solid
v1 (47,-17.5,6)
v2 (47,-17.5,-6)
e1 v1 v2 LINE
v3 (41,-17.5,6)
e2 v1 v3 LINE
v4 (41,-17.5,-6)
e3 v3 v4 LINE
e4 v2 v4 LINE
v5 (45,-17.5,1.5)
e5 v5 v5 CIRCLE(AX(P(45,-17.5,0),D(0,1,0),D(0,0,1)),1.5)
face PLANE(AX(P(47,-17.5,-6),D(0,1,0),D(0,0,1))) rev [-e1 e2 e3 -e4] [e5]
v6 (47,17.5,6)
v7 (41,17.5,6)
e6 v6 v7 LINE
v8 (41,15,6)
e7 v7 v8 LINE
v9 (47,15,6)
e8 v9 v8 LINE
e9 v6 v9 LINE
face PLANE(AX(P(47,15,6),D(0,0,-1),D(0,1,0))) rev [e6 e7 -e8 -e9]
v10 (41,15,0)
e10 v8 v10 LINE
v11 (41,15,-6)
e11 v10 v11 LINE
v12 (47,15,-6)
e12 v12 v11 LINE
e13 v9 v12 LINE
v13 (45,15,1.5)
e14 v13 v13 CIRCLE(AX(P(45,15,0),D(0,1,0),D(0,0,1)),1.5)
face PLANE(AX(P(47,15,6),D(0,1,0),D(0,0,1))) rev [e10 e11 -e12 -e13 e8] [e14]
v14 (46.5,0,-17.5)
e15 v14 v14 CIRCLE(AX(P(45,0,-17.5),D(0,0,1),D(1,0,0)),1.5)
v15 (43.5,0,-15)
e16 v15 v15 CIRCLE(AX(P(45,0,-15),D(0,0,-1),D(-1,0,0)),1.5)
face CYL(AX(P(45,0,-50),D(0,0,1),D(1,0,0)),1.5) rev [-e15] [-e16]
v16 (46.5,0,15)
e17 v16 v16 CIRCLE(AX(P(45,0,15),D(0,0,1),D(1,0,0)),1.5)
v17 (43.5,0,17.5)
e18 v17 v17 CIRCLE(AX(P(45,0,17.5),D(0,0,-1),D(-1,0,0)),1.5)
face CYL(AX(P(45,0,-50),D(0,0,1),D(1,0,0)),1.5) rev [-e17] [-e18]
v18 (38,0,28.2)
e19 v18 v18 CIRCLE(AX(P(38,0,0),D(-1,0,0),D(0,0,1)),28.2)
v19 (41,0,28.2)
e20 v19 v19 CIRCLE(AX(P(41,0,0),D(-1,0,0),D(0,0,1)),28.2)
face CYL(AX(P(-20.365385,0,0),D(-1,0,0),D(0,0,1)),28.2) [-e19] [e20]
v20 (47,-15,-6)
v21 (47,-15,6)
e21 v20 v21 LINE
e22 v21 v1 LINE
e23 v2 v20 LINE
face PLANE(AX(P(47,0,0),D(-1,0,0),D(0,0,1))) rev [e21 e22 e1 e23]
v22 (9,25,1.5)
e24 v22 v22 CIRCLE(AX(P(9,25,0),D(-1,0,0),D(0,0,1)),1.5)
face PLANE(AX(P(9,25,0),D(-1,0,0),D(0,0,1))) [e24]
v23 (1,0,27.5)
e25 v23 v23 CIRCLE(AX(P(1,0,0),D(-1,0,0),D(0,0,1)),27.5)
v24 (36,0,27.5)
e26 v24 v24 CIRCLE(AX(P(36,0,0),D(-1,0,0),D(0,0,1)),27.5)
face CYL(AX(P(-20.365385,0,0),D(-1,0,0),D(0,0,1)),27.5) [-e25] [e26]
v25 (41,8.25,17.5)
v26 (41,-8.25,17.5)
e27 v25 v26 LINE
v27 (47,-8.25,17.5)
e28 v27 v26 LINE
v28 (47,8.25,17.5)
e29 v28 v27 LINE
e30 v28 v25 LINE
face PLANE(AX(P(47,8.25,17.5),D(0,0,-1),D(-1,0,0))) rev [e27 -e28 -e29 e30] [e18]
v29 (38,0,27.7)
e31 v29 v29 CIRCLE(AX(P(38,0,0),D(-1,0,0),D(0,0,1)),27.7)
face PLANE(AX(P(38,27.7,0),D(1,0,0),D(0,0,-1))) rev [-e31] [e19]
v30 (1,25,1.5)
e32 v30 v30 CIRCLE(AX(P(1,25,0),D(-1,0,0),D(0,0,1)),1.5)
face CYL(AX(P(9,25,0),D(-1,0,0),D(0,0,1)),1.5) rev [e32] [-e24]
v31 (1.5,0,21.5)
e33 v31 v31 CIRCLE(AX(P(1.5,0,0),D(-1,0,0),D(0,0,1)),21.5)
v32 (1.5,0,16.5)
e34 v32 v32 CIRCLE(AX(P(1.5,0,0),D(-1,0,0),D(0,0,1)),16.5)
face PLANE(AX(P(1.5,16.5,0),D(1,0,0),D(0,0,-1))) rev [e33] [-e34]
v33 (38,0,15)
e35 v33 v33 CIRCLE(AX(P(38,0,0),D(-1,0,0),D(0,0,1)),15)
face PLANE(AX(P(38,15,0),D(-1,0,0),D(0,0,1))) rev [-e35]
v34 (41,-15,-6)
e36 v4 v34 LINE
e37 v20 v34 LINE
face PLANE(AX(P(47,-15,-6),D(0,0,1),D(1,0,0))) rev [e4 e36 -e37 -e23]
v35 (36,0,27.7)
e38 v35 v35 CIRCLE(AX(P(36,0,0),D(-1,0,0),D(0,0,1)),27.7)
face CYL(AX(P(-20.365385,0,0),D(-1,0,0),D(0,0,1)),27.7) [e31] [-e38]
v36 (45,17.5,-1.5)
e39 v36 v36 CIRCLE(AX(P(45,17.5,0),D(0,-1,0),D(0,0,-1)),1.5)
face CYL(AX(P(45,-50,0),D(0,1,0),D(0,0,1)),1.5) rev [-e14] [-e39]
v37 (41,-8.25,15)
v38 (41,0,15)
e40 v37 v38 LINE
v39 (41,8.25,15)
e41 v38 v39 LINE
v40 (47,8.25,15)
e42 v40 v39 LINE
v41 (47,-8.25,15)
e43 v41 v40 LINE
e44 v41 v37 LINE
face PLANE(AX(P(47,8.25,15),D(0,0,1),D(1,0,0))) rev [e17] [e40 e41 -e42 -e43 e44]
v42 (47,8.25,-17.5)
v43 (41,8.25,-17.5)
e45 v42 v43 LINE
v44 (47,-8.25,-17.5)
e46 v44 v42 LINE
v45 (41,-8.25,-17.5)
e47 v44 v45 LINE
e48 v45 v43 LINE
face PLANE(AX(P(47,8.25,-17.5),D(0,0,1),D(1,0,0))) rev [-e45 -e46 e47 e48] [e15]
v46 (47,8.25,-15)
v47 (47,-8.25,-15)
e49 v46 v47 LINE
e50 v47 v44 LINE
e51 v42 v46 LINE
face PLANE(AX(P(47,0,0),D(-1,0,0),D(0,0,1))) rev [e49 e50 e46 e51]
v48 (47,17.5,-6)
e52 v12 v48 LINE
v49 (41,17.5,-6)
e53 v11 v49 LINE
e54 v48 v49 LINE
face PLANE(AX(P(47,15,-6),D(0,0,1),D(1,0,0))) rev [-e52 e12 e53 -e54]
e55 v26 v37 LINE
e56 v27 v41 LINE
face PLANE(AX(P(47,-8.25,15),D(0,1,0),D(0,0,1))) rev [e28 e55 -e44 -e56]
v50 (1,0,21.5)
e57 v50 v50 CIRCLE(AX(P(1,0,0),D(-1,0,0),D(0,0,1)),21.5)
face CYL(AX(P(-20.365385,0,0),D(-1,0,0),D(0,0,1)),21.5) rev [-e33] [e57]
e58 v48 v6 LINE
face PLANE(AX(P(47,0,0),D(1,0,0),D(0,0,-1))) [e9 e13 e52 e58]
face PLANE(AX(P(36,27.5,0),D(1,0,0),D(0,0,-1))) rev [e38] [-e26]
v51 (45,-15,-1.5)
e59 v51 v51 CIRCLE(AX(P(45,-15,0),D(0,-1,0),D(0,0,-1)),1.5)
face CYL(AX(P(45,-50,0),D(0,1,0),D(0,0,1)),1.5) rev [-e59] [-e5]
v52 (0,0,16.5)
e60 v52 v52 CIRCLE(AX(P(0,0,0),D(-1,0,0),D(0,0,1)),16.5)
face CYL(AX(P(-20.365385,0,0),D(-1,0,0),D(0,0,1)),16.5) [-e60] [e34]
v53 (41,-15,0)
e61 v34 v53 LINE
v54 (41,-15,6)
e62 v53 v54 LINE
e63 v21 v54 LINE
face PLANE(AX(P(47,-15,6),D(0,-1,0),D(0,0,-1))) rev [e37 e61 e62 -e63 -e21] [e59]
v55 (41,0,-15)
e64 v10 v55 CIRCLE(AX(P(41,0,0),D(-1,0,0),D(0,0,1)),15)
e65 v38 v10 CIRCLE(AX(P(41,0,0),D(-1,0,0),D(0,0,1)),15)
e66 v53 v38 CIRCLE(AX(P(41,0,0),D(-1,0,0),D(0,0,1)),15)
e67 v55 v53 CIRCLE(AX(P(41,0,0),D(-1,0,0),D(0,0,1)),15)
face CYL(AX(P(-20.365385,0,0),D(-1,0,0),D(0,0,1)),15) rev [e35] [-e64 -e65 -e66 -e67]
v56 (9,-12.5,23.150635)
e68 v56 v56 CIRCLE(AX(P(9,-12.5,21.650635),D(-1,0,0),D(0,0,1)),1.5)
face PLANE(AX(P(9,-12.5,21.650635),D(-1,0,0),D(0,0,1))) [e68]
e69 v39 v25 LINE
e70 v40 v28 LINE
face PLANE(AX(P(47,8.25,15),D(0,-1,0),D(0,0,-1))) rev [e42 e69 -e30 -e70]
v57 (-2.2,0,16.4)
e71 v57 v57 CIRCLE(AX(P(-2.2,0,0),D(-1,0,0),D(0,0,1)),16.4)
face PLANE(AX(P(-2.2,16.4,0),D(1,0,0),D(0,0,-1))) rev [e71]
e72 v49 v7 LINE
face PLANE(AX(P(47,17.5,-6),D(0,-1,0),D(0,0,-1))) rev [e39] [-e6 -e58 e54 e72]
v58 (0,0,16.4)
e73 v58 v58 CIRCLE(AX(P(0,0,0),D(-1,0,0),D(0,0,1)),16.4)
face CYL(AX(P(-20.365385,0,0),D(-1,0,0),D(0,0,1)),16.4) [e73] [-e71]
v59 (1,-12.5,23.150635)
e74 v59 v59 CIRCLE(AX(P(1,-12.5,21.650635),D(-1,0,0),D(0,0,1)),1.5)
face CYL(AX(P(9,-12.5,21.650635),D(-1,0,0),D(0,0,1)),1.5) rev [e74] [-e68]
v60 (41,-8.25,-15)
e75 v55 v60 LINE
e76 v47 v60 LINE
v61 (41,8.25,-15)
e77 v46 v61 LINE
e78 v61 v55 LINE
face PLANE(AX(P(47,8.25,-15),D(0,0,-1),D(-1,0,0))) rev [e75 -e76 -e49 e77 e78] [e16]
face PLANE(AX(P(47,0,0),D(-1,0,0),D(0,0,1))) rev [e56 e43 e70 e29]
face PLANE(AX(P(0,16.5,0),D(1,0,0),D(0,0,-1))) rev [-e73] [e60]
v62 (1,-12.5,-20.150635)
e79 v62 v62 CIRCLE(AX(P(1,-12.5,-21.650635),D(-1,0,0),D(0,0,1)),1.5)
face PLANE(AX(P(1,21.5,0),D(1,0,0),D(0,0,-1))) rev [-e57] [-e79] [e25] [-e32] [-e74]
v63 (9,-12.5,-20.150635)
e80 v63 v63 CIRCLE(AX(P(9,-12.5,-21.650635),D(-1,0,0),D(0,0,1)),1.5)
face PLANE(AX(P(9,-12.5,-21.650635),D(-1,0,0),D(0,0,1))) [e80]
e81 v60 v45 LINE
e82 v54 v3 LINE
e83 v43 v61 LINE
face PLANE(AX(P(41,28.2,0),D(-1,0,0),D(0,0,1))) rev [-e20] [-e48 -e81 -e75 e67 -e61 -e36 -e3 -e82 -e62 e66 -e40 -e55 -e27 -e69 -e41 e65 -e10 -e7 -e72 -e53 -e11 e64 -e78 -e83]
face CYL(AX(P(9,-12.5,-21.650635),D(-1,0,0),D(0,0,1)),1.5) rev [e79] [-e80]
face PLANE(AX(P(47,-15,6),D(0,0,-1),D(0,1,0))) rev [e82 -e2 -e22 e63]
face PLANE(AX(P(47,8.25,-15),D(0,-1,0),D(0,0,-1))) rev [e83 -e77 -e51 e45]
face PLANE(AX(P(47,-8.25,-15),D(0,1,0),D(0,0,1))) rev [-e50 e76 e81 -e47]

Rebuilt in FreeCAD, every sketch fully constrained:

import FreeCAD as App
import Part
import Sketcher
from FreeCAD import Vector


def add_polygon(sketch, points):
    """Adds a closed chain of lines whose ends are joined by coincident constraints."""
    first, n = sketch.GeometryCount, len(points)
    for a, b in zip(points, points[1:] + points[:1]):
        sketch.addGeometry(Part.LineSegment(App.Vector(*a, 0), App.Vector(*b, 0)), False)
    for i in range(n):
        sketch.addConstraint(Sketcher.Constraint("Coincident", first + i, 2, first + (i + 1) % n, 1))

doc = App.newDocument("Part")
body = doc.addObject("PartDesign::Body", "Body")

# Sketch on XY plane
sketch1 = doc.addObject("Sketcher::SketchObject", "Sketch")
body.addObject(sketch1)
sketch1.AttachmentSupport = (doc.XY_Plane, [""])
sketch1.MapMode = "FlatFace"
add_polygon(sketch1, [(1.5, 16.5), (0, 16.5), (0, 16.4), (-2.2, 16.4), (-2.2, 0), (38, 0), (38, 15), (41, 15), (41, 28.2), (38, 28.2), (38, 27.7), (36, 27.7), (36, 27.5), (1, 27.5), (1, 21.5), (1.5, 21.5)])  # lines 0-15
sketch1.addConstraint([
    Sketcher.Constraint("Horizontal", 0),
    Sketcher.Constraint("Vertical", 1),
    Sketcher.Constraint("Horizontal", 2),
    Sketcher.Constraint("Vertical", 3),
    Sketcher.Constraint("Horizontal", 4),
    Sketcher.Constraint("Vertical", 5),
    Sketcher.Constraint("Horizontal", 6),
    Sketcher.Constraint("Vertical", 7),
    Sketcher.Constraint("Horizontal", 8),
    Sketcher.Constraint("Vertical", 9),
    Sketcher.Constraint("Horizontal", 10),
    Sketcher.Constraint("Vertical", 11),
    Sketcher.Constraint("Horizontal", 12),
    Sketcher.Constraint("Vertical", 13),
    Sketcher.Constraint("Horizontal", 14),
    Sketcher.Constraint("Vertical", 15),
    Sketcher.Constraint("PointOnObject", 0, 2, -2),
    Sketcher.Constraint("PointOnObject", 3, 2, -1),
    Sketcher.Constraint("Vertical", 5, 2, 8, 2),
    Sketcher.Constraint("Equal", 14, 9),
    Sketcher.Constraint("DistanceX", 6, 1, 6, 2, 3.0),
    Sketcher.Constraint("DistanceX", 10, 2, 10, 1, 2.0),
    Sketcher.Constraint("DistanceX", 12, 2, 12, 1, 35.0),
    Sketcher.Constraint("DistanceY", 5, 1, 5, 2, 15.0),
    Sketcher.Constraint("DistanceY", 13, 2, 13, 1, 6.0),
    Sketcher.Constraint("DistanceY", 15, 2, 15, 1, 5.0),
    Sketcher.Constraint("DistanceX", 0, 2, 0, 1, 1.5),
    Sketcher.Constraint("DistanceX", 2, 2, 2, 1, 2.2),
    Sketcher.Constraint("DistanceX", 4, 1, 4, 2, 40.2),
    Sketcher.Constraint("DistanceY", 1, 2, 1, 1, 0.1),
    Sketcher.Constraint("DistanceY", 3, 2, 3, 1, 16.4),
    Sketcher.Constraint("DistanceY", 7, 1, 7, 2, 13.2),
])
revolution = doc.addObject("PartDesign::Revolution", "Revolution")
body.addObject(revolution)
revolution.Profile = sketch1
revolution.ReferenceAxis = (sketch1, ["H_Axis"])
revolution.Angle = 360

# Sketch on YZ plane
sketch2 = doc.addObject("Sketcher::SketchObject", "Sketch001")
body.addObject(sketch2)
sketch2.AttachmentSupport = (doc.YZ_Plane, [""])
sketch2.MapMode = "FlatFace"
sketch2.AttachmentOffset = App.Placement(Vector(0, 0, 1), App.Rotation())
sketch2.addGeometry([
    Part.Circle(Vector(25, 0, 0), Vector(0, 0, 1), 1.5),
    Part.Circle(Vector(-12.5, 21.7, 0), Vector(0, 0, 1), 1.5),
    Part.Circle(Vector(-12.5, -21.7, 0), Vector(0, 0, 1), 1.5),
], False)
sketch2.addConstraint([
    Sketcher.Constraint("Equal", 0, 1),
    Sketcher.Constraint("Equal", 1, 2),
    Sketcher.Constraint("Symmetric", 1, 3, 2, 3, -1),
    Sketcher.Constraint("PointOnObject", 0, 3, -1),
    Sketcher.Constraint("Diameter", 0, 3.0),
    Sketcher.Constraint("DistanceX", -1, 1, 0, 3, 25.0),
    Sketcher.Constraint("DistanceX", 1, 3, -1, 1, 12.5),
    Sketcher.Constraint("DistanceY", 2, 3, 1, 3, 43.30127),
])
pocket1 = doc.addObject("PartDesign::Pocket", "Pocket")
body.addObject(pocket1)
pocket1.Profile = sketch2
pocket1.Length = 8
pocket1.Reversed = True

# Sketch on YZ plane
sketch3 = doc.addObject("Sketcher::SketchObject", "Sketch002")
body.addObject(sketch3)
sketch3.AttachmentSupport = (doc.YZ_Plane, [""])
sketch3.MapMode = "FlatFace"
sketch3.AttachmentOffset = App.Placement(Vector(0, 0, 41), App.Rotation())
add_polygon(sketch3, [(8.2, -15), (-8.2, -15), (-8.2, -17.5), (8.2, -17.5)])  # lines 0-3
add_polygon(sketch3, [(17.5, 6), (15, 6), (15, -6), (17.5, -6)])  # lines 4-7
add_polygon(sketch3, [(8.2, 17.5), (-8.2, 17.5), (-8.2, 15), (8.2, 15)])  # lines 8-11
add_polygon(sketch3, [(-15, 6), (-17.5, 6), (-17.5, -6), (-15, -6)])  # lines 12-15
sketch3.addConstraint([
    Sketcher.Constraint("Horizontal", 0),
    Sketcher.Constraint("Vertical", 1),
    Sketcher.Constraint("Horizontal", 2),
    Sketcher.Constraint("Vertical", 3),
    Sketcher.Constraint("Horizontal", 4),
    Sketcher.Constraint("Vertical", 5),
    Sketcher.Constraint("Horizontal", 6),
    Sketcher.Constraint("Vertical", 7),
    Sketcher.Constraint("Horizontal", 8),
    Sketcher.Constraint("Vertical", 9),
    Sketcher.Constraint("Horizontal", 10),
    Sketcher.Constraint("Vertical", 11),
    Sketcher.Constraint("Horizontal", 12),
    Sketcher.Constraint("Vertical", 13),
    Sketcher.Constraint("Horizontal", 14),
    Sketcher.Constraint("Vertical", 15),
    Sketcher.Constraint("Symmetric", 2, 2, 8, 2, -1, 1),
    Sketcher.Constraint("Symmetric", 0, 2, 10, 2, -1, 1),
    Sketcher.Constraint("Symmetric", 6, 2, 12, 2, -1, 1),
    Sketcher.Constraint("Symmetric", 4, 2, 14, 2, -1, 1),
    Sketcher.Constraint("Horizontal", 7, 2, 12, 2),
    Sketcher.Constraint("Vertical", 1, 2, 8, 2),
    Sketcher.Constraint("Equal", 14, 1),
    Sketcher.Constraint("DistanceY", 5, 2, 5, 1, 12.0),
    Sketcher.Constraint("DistanceX", 0, 2, 0, 1, 16.5),
    Sketcher.Constraint("DistanceX", 4, 2, 4, 1, 2.5),
    Sketcher.Constraint("DistanceY", 0, 2, -1, 1, 15.0),
    Sketcher.Constraint("DistanceX", -1, 1, 4, 2, 15.0),
])
pad1 = doc.addObject("PartDesign::Pad", "Pad")
body.addObject(pad1)
pad1.Profile = sketch3
pad1.Length = 6

# Sketch on XY plane
sketch4 = doc.addObject("Sketcher::SketchObject", "Sketch003")
body.addObject(sketch4)
sketch4.AttachmentSupport = (doc.XY_Plane, [""])
sketch4.MapMode = "FlatFace"
sketch4.addGeometry(Part.Circle(Vector(45, 0, 0), Vector(0, 0, 1), 1.5), False)
sketch4.addConstraint([
    Sketcher.Constraint("PointOnObject", 0, 3, -1),
    Sketcher.Constraint("Diameter", 0, 3.0),
    Sketcher.Constraint("DistanceX", -1, 1, 0, 3, 45.0),
])
pocket2 = doc.addObject("PartDesign::Pocket", "Pocket001")
body.addObject(pocket2)
pocket2.Profile = sketch4
pocket2.Length = 100
pocket2.Midplane = True
doc.recompute()

polarpattern = doc.addObject("PartDesign::PolarPattern", "PolarPattern")
body.addObject(polarpattern)
polarpattern.Originals = [pocket2]
polarpattern.Axis = (doc.X_Axis, [""])
polarpattern.Angle = 90
polarpattern.Occurrences = 2
polarpattern.Reversed = True
body.Tip = polarpattern

doc.recompute()
